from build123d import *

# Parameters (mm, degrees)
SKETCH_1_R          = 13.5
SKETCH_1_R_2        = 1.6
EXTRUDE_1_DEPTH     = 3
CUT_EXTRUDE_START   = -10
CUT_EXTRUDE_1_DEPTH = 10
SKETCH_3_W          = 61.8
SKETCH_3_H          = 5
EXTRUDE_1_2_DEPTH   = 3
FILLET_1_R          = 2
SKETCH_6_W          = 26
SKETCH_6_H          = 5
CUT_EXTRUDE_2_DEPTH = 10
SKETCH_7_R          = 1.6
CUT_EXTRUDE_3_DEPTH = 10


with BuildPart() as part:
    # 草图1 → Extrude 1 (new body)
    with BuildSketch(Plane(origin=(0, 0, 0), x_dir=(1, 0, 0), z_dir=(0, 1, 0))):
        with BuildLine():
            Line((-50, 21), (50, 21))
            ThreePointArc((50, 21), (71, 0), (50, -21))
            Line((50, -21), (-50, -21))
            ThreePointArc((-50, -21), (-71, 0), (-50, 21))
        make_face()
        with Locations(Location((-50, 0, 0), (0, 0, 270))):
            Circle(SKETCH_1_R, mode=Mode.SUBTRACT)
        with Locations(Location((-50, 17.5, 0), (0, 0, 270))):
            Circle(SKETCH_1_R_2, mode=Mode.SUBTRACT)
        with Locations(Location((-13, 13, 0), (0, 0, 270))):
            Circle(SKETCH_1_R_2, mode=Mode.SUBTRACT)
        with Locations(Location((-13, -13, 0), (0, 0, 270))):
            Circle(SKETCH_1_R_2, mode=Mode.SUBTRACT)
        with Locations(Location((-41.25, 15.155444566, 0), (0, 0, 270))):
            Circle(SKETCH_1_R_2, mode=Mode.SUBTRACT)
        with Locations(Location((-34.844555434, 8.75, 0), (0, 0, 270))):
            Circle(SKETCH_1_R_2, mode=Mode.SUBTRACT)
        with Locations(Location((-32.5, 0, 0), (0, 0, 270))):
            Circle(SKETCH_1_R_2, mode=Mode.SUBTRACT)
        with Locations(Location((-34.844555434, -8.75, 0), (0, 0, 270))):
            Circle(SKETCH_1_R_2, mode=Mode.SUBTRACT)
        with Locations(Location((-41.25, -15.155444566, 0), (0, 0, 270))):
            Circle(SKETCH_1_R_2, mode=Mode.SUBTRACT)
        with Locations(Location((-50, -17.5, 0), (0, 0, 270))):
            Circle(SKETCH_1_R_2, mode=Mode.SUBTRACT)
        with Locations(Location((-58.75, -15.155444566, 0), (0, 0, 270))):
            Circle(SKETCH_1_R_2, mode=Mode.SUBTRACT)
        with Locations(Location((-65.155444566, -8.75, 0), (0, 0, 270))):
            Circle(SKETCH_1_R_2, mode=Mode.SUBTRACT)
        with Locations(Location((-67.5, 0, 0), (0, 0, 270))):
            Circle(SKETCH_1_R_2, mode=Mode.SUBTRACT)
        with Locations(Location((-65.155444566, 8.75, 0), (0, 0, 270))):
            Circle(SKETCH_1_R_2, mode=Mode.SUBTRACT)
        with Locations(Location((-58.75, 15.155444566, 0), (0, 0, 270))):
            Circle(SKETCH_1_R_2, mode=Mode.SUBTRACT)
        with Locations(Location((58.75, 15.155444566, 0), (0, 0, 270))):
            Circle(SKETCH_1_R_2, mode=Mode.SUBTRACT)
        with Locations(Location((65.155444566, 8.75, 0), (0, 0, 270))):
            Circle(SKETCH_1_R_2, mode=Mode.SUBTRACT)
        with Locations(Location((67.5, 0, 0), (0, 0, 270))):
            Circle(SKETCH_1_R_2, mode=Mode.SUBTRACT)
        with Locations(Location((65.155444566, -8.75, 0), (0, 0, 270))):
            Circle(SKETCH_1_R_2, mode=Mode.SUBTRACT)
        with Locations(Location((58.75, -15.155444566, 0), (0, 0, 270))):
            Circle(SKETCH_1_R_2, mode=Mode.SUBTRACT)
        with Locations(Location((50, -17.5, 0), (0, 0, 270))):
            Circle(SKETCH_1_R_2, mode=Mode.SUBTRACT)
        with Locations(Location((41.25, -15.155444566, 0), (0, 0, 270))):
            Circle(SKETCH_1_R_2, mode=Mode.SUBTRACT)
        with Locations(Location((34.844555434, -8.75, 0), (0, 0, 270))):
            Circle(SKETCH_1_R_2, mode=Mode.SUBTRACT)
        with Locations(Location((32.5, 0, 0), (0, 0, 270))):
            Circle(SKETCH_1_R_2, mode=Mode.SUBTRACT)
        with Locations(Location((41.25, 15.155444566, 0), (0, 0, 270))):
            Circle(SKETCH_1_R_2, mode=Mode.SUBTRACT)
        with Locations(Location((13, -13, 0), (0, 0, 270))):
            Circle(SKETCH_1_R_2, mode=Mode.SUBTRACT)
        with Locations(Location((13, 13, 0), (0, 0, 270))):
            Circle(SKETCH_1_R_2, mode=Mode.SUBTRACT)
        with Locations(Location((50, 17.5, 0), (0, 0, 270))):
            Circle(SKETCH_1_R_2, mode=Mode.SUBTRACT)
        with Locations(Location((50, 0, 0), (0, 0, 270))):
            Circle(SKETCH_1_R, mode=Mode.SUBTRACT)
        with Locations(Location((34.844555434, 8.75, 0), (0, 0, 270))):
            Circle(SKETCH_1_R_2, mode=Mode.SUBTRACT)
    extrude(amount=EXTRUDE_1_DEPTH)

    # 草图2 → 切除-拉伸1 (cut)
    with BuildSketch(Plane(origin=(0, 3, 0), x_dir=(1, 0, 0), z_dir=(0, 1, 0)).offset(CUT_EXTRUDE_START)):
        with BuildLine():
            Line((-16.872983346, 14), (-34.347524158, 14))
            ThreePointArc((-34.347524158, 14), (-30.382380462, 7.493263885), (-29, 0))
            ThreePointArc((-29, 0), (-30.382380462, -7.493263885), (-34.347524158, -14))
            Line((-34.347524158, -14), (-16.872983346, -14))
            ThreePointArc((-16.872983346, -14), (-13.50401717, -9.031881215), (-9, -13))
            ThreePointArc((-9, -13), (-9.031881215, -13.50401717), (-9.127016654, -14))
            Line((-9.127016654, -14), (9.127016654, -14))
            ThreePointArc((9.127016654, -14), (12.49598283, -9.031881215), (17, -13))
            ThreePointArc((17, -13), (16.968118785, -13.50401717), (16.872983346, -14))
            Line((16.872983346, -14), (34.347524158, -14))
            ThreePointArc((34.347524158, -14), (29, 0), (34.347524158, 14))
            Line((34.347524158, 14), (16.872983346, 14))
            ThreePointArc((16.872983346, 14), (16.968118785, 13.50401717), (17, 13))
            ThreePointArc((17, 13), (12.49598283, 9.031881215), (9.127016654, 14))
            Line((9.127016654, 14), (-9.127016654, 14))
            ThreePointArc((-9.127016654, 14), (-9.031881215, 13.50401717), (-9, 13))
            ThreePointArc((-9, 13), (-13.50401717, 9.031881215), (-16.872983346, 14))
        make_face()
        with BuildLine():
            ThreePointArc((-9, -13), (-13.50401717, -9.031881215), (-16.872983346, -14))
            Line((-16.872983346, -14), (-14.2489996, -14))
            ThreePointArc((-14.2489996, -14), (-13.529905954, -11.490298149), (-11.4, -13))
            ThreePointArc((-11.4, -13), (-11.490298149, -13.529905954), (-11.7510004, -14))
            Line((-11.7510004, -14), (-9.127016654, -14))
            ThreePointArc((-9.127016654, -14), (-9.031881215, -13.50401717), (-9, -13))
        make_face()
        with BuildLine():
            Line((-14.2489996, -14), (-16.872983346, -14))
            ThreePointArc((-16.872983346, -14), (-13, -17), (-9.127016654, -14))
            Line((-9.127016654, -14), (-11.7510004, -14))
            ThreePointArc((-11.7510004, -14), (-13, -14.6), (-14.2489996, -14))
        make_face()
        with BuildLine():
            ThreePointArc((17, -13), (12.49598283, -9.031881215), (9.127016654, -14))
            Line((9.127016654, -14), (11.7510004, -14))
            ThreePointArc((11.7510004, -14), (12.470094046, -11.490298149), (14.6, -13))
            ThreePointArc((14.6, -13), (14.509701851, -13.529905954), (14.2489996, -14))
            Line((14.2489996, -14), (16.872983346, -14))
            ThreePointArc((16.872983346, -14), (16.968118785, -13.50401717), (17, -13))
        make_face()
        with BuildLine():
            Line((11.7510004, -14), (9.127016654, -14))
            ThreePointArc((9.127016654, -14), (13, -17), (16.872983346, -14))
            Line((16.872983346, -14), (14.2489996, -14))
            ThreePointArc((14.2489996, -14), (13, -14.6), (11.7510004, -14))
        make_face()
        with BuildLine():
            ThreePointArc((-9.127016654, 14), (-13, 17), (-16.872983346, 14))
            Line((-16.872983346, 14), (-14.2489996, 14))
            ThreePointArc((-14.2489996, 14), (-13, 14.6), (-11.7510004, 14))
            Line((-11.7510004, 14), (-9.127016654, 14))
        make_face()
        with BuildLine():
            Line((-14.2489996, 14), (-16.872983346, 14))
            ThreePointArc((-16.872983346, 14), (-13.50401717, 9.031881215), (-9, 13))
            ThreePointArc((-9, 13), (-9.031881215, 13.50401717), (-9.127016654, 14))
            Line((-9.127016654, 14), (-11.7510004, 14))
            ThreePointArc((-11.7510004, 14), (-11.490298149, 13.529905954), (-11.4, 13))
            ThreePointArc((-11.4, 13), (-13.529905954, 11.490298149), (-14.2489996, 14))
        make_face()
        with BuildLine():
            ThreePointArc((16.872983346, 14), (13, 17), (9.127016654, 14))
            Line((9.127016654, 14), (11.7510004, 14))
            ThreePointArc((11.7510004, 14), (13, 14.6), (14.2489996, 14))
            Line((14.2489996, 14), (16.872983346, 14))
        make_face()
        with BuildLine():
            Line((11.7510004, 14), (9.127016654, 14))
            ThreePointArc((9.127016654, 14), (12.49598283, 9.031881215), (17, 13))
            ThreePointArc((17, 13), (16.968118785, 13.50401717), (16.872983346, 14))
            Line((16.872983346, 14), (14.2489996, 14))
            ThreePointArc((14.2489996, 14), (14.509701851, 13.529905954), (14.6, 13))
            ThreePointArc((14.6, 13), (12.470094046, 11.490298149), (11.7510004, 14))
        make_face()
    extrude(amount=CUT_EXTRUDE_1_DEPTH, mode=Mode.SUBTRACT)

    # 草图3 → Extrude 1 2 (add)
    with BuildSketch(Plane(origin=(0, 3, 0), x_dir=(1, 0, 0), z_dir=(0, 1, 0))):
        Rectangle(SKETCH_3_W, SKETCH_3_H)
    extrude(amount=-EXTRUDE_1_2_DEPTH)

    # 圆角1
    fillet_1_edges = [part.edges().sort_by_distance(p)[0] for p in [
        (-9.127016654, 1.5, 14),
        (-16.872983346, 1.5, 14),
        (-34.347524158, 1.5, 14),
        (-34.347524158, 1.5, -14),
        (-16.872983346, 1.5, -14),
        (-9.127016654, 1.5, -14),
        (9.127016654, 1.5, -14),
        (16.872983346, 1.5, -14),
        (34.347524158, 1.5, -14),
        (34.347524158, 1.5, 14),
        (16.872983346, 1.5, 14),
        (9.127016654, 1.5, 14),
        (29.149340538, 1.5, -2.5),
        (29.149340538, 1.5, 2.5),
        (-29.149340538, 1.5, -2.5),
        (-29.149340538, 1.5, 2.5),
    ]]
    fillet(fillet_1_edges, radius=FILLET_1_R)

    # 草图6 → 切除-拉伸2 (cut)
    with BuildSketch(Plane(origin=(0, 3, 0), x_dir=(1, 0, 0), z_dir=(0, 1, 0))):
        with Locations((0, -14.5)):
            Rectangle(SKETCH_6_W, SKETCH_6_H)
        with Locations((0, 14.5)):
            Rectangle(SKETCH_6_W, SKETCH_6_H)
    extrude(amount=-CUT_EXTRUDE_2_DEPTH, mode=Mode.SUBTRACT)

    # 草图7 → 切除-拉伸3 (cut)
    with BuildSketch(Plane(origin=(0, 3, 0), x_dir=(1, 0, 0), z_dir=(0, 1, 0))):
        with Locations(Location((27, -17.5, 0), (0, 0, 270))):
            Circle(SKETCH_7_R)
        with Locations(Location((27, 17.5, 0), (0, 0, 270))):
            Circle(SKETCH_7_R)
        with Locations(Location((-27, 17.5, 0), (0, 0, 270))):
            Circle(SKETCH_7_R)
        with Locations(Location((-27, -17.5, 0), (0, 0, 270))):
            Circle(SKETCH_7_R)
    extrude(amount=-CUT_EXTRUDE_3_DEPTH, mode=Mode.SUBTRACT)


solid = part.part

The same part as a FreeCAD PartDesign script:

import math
import FreeCAD as App
import Part
import Sketcher
from FreeCAD import Vector
Q = App.Units.Quantity


def edges_at(feature, points):
    """Names of the edges that pass closest to the given points."""
    edges = feature.Shape.Edges
    near = lambda p: min(range(len(edges)), key=lambda i: edges[i].distToShape(Part.Vertex(*p))[0])
    return sorted({f"Edge{near(p) + 1}" for p in points})

doc = App.newDocument("Part")
body = doc.addObject("PartDesign::Body", "Body")

# Sketch on XZ plane
sketch1 = body.newObject("Sketcher::SketchObject", "Sketch")
sketch1.AttachmentSupport = (doc.getObject("XZ_Plane"), [""])
sketch1.MapMode = "FlatFace"
sketch1.addGeometry([
    Part.LineSegment(Vector(50, -21, 0), Vector(-50, -21, 0)),  # 0
    Part.ArcOfCircle(Part.Circle(Vector(-50, 0, 0), Vector(0, 0, 1), 21), math.radians(90), math.radians(270)),  # 1
    Part.LineSegment(Vector(-50, 21, 0), Vector(50, 21, 0)),  # 2
    Part.ArcOfCircle(Part.Circle(Vector(50, 0, 0), Vector(0, 0, 1), 21), math.radians(-90), math.radians(90)),  # 3
    Part.Circle(Vector(58.8, 15.2, 0), Vector(0, 0, 1), 1.6),  # 4
    Part.Circle(Vector(50, 17.5, 0), Vector(0, 0, 1), 1.6),  # 5
    Part.Circle(Vector(41.2, 15.2, 0), Vector(0, 0, 1), 1.6),  # 6
    Part.Circle(Vector(13, 13, 0), Vector(0, 0, 1), 1.6),  # 7
    Part.Circle(Vector(65.2, 8.8, 0), Vector(0, 0, 1), 1.6),  # 8
    Part.Circle(Vector(34.8, 8.8, 0), Vector(0, 0, 1), 1.6),  # 9
    Part.Circle(Vector(67.5, 0, 0), Vector(0, 0, 1), 1.6),  # 10
    Part.Circle(Vector(50, 0, 0), Vector(0, 0, 1), 13.5),  # 11
    Part.Circle(Vector(32.5, 0, 0), Vector(0, 0, 1), 1.6),  # 12
    Part.Circle(Vector(-13, 13, 0), Vector(0, 0, 1), 1.6),  # 13
    Part.Circle(Vector(-50, 17.5, 0), Vector(0, 0, 1), 1.6),  # 14
    Part.Circle(Vector(-41.2, 15.2, 0), Vector(0, 0, 1), 1.6),  # 15
    Part.Circle(Vector(-58.8, 15.2, 0), Vector(0, 0, 1), 1.6),  # 16
    Part.Circle(Vector(-32.5, 0, 0), Vector(0, 0, 1), 1.6),  # 17
    Part.Circle(Vector(-34.8, 8.8, 0), Vector(0, 0, 1), 1.6),  # 18
    Part.Circle(Vector(-65.2, 8.8, 0), Vector(0, 0, 1), 1.6),  # 19
    Part.Circle(Vector(-50, 0, 0), Vector(0, 0, 1), 13.5),  # 20
    Part.Circle(Vector(-67.5, 0, 0), Vector(0, 0, 1), 1.6),  # 21
    Part.Circle(Vector(65.2, -8.8, 0), Vector(0, 0, 1), 1.6),  # 22
    Part.Circle(Vector(34.8, -8.8, 0), Vector(0, 0, 1), 1.6),  # 23
    Part.Circle(Vector(58.8, -15.2, 0), Vector(0, 0, 1), 1.6),  # 24
    Part.Circle(Vector(41.2, -15.2, 0), Vector(0, 0, 1), 1.6),  # 25
    Part.Circle(Vector(50, -17.5, 0), Vector(0, 0, 1), 1.6),  # 26
    Part.Circle(Vector(13, -13, 0), Vector(0, 0, 1), 1.6),  # 27
    Part.Circle(Vector(-34.8, -8.8, 0), Vector(0, 0, 1), 1.6),  # 28
    Part.Circle(Vector(-65.2, -8.8, 0), Vector(0, 0, 1), 1.6),  # 29
    Part.Circle(Vector(-13, -13, 0), Vector(0, 0, 1), 1.6),  # 30
    Part.Circle(Vector(-41.2, -15.2, 0), Vector(0, 0, 1), 1.6),  # 31
    Part.Circle(Vector(-50, -17.5, 0), Vector(0, 0, 1), 1.6),  # 32
    Part.Circle(Vector(-58.8, -15.2, 0), Vector(0, 0, 1), 1.6),  # 33
], False)
sketch1.addConstraint([
    Sketcher.Constraint("Tangent", 0, 2, 1, 2),
    Sketcher.Constraint("Tangent", 1, 1, 2, 1),
    Sketcher.Constraint("Tangent", 2, 2, 3, 2),
    Sketcher.Constraint("Tangent", 3, 1, 0, 1),
    Sketcher.Constraint("Horizontal", 0),
    Sketcher.Constraint("Horizontal", 2),
    Sketcher.Constraint("Coincident", 11, 3, 3, 3),
    Sketcher.Constraint("Coincident", 20, 3, 1, 3),
    Sketcher.Constraint("Equal", 4, 5),
    Sketcher.Constraint("Equal", 5, 6),
    Sketcher.Constraint("Equal", 6, 7),
    Sketcher.Constraint("Equal", 7, 8),
    Sketcher.Constraint("Equal", 8, 9),
    Sketcher.Constraint("Equal", 9, 10),
    Sketcher.Constraint("Equal", 10, 12),
    Sketcher.Constraint("Equal", 12, 13),
    Sketcher.Constraint("Equal", 13, 14),
    Sketcher.Constraint("Equal", 14, 15),
    Sketcher.Constraint("Equal", 15, 16),
    Sketcher.Constraint("Equal", 16, 17),
    Sketcher.Constraint("Equal", 17, 18),
    Sketcher.Constraint("Equal", 18, 19),
    Sketcher.Constraint("Equal", 11, 20),
    Sketcher.Constraint("Equal", 19, 21),
    Sketcher.Constraint("Equal", 21, 22),
    Sketcher.Constraint("Equal", 22, 23),
    Sketcher.Constraint("Equal", 23, 24),
    Sketcher.Constraint("Equal", 24, 25),
    Sketcher.Constraint("Equal", 25, 26),
    Sketcher.Constraint("Equal", 26, 27),
    Sketcher.Constraint("Equal", 27, 28),
    Sketcher.Constraint("Equal", 28, 29),
    Sketcher.Constraint("Equal", 29, 30),
    Sketcher.Constraint("Equal", 30, 31),
    Sketcher.Constraint("Equal", 31, 32),
    Sketcher.Constraint("Equal", 32, 33),
    Sketcher.Constraint("Symmetric", 1, 3, 3, 3, -1, 1),
    Sketcher.Constraint("Symmetric", 12, 3, 17, 3, -1, 1),
    Sketcher.Constraint("Symmetric", 10, 3, 21, 3, -1, 1),
    Sketcher.Constraint("Symmetric", 19, 3, 22, 3, -1, 1),
    Sketcher.Constraint("Symmetric", 18, 3, 23, 3, -1, 1),
    Sketcher.Constraint("Symmetric", 16, 3, 24, 3, -1, 1),
    Sketcher.Constraint("Symmetric", 15, 3, 25, 3, -1, 1),
    Sketcher.Constraint("Symmetric", 14, 3, 26, 3, -1, 1),
    Sketcher.Constraint("Symmetric", 13, 3, 27, 3, -1, 1),
    Sketcher.Constraint("Symmetric", 9, 3, 28, 3, -1, 1),
    Sketcher.Constraint("Symmetric", 8, 3, 29, 3, -1, 1),
    Sketcher.Constraint("Symmetric", 7, 3, 30, 3, -1, 1),
    Sketcher.Constraint("Symmetric", 6, 3, 31, 3, -1, 1),
    Sketcher.Constraint("Symmetric", 5, 3, 32, 3, -1, 1),
    Sketcher.Constraint("Symmetric", 4, 3, 33, 3, -1, 1),
    Sketcher.Constraint("Symmetric", 7, 3, 13, 3, -2),
    Sketcher.Constraint("Symmetric", 5, 3, 14, 3, -2),
    Sketcher.Constraint("Symmetric", 6, 3, 15, 3, -2),
    Sketcher.Constraint("Symmetric", 4, 3, 16, 3, -2),
    Sketcher.Constraint("Symmetric", 9, 3, 18, 3, -2),
    Sketcher.Constraint("Symmetric", 8, 3, 19, 3, -2),
    Sketcher.Constraint("PointOnObject", 10, 3, -1),
    Sketcher.Constraint("PointOnObject", 12, 3, -1),
    Sketcher.Constraint("Horizontal", 4, 3, 6, 3),
    Sketcher.Constraint("Horizontal", 8, 3, 9, 3),
    Sketcher.Constraint("Vertical", 3, 3, 5, 3),
    Sketcher.Constraint("Diameter", 11, Q("27 mm")),
    Sketcher.Constraint("Radius", 1, Q("21 mm")),
    Sketcher.Constraint("Diameter", 4, Q("3.2 mm")),
    Sketcher.Constraint("DistanceX", 0, 2, 0, 1, Q("100 mm")),
    Sketcher.Constraint("DistanceX", -1, 1, 7, 3, Q("13 mm")),
    Sketcher.Constraint("DistanceY", -1, 1, 7, 3, Q("13 mm")),
    Sketcher.Constraint("DistanceY", -1, 1, 5, 3, Q("17.5 mm")),
    Sketcher.Constraint("DistanceX", -1, 1, 10, 3, Q("67.5 mm")),
    Sketcher.Constraint("DistanceX", -1, 1, 12, 3, Q("32.5 mm")),
    Sketcher.Constraint("DistanceX", 6, 3, 4, 3, Q("17.5 mm")),
    Sketcher.Constraint("DistanceY", 22, 3, 8, 3, Q("17.5 mm")),
    Sketcher.Constraint("DistanceX", -1, 1, 4, 3, Q("58.75 mm")),
    Sketcher.Constraint("DistanceX", 19, 3, 18, 3, Q("30.310889 mm")),
    Sketcher.Constraint("DistanceY", -1, 1, 4, 3, Q("15.155445 mm")),
    Sketcher.Constraint("DistanceX", -1, 1, 8, 3, Q("65.155445 mm")),
])
pad1 = body.newObject("PartDesign::Pad", "Pad")
pad1.Profile = sketch1
pad1.Length = 3
pad1.Reversed = True

# Sketch on XZ plane
sketch2 = body.newObject("Sketcher::SketchObject", "Sketch001")
sketch2.AttachmentSupport = (doc.getObject("XZ_Plane"), [""])
sketch2.MapMode = "FlatFace"
sketch2.AttachmentOffset = App.Placement(Vector(0, 0, 7), App.Rotation())
sketch2.addGeometry([
    Part.LineSegment(Vector(16.9, 14, 0), Vector(34.3, 14, 0)),  # 0
    Part.ArcOfCircle(Part.Circle(Vector(50, 0, 0), Vector(0, 0, 1), 21), math.radians(138), math.radians(222)),  # 1
    Part.LineSegment(Vector(34.3, -14, 0), Vector(16.9, -14, 0)),  # 2
    Part.ArcOfCircle(Part.Circle(Vector(13, -13, 0), Vector(0, 0, 1), 4), math.radians(-166), math.radians(-14)),  # 3
    Part.LineSegment(Vector(9.1, -14, 0), Vector(-9.1, -14, 0)),  # 4
    Part.ArcOfCircle(Part.Circle(Vector(-13, -13, 0), Vector(0, 0, 1), 4), math.radians(-166), math.radians(-14)),  # 5
    Part.LineSegment(Vector(-16.9, -14, 0), Vector(-34.3, -14, 0)),  # 6
    Part.ArcOfCircle(Part.Circle(Vector(-50, 0, 0), Vector(0, 0, 1), 21), math.radians(-42), math.radians(0)),  # 7
    Part.ArcOfCircle(Part.Circle(Vector(-50, 0, 0), Vector(0, 0, 1), 21), math.radians(0), math.radians(42)),  # 8
    Part.LineSegment(Vector(-34.3, 14, 0), Vector(-16.9, 14, 0)),  # 9
    Part.ArcOfCircle(Part.Circle(Vector(-13, 13, 0), Vector(0, 0, 1), 4), math.radians(14), math.radians(166)),  # 10
    Part.LineSegment(Vector(-9.1, 14, 0), Vector(9.1, 14, 0)),  # 11
    Part.ArcOfCircle(Part.Circle(Vector(13, 13, 0), Vector(0, 0, 1), 4), math.radians(14), math.radians(166)),  # 12
    Part.ArcOfCircle(Part.Circle(Vector(-13, 13, 0), Vector(0, 0, 1), 1.6), math.radians(0), math.radians(39)),  # 13
    Part.ArcOfCircle(Part.Circle(Vector(-13, 13, 0), Vector(0, 0, 1), 1.6), math.radians(39), math.radians(141)),  # 14
    Part.ArcOfCircle(Part.Circle(Vector(-13, 13, 0), Vector(0, 0, 1), 1.6), math.radians(141), math.radians(360)),  # 15
    Part.ArcOfCircle(Part.Circle(Vector(13, 13, 0), Vector(0, 0, 1), 1.6), math.radians(0), math.radians(39)),  # 16
    Part.ArcOfCircle(Part.Circle(Vector(13, 13, 0), Vector(0, 0, 1), 1.6), math.radians(39), math.radians(141)),  # 17
    Part.ArcOfCircle(Part.Circle(Vector(13, 13, 0), Vector(0, 0, 1), 1.6), math.radians(141), math.radians(360)),  # 18
    Part.ArcOfCircle(Part.Circle(Vector(-13, -13, 0), Vector(0, 0, 1), 1.6), math.radians(-39), math.radians(0)),  # 19
    Part.ArcOfCircle(Part.Circle(Vector(-13, -13, 0), Vector(0, 0, 1), 1.6), math.radians(0), math.radians(219)),  # 20
    Part.ArcOfCircle(Part.Circle(Vector(-13, -13, 0), Vector(0, 0, 1), 1.6), math.radians(-141), math.radians(-39)),  # 21
    Part.ArcOfCircle(Part.Circle(Vector(13, -13, 0), Vector(0, 0, 1), 1.6), math.radians(-39), math.radians(0)),  # 22
    Part.ArcOfCircle(Part.Circle(Vector(13, -13, 0), Vector(0, 0, 1), 1.6), math.radians(0), math.radians(219)),  # 23
    Part.ArcOfCircle(Part.Circle(Vector(13, -13, 0), Vector(0, 0, 1), 1.6), math.radians(-141), math.radians(-39)),  # 24
], False)
sketch2.addConstraint([
    Sketcher.Constraint("Coincident", 0, 2, 1, 1),
    Sketcher.Constraint("Coincident", 1, 2, 2, 1),
    Sketcher.Constraint("Coincident", 2, 2, 3, 2),
    Sketcher.Constraint("Coincident", 3, 1, 4, 1),
    Sketcher.Constraint("Coincident", 4, 2, 5, 2),
    Sketcher.Constraint("Coincident", 5, 1, 6, 1),
    Sketcher.Constraint("Coincident", 6, 2, 7, 1),
    Sketcher.Constraint("Tangent", 7, 2, 8, 1),
    Sketcher.Constraint("Coincident", 8, 2, 9, 1),
    Sketcher.Constraint("Coincident", 9, 2, 10, 2),
    Sketcher.Constraint("Coincident", 10, 1, 11, 1),
    Sketcher.Constraint("Coincident", 11, 2, 12, 2),
    Sketcher.Constraint("Coincident", 12, 1, 0, 1),
    Sketcher.Constraint("Tangent", 13, 2, 14, 1),
    Sketcher.Constraint("Tangent", 14, 2, 15, 1),
    Sketcher.Constraint("Tangent", 15, 2, 13, 1),
    Sketcher.Constraint("Tangent", 16, 2, 17, 1),
    Sketcher.Constraint("Tangent", 17, 2, 18, 1),
    Sketcher.Constraint("Tangent", 18, 2, 16, 1),
    Sketcher.Constraint("Tangent", 19, 2, 20, 1),
    Sketcher.Constraint("Tangent", 20, 2, 21, 1),
    Sketcher.Constraint("Tangent", 21, 2, 19, 1),
    Sketcher.Constraint("Tangent", 22, 2, 23, 1),
    Sketcher.Constraint("Tangent", 23, 2, 24, 1),
    Sketcher.Constraint("Tangent", 24, 2, 22, 1),
    Sketcher.Constraint("Horizontal", 0),
    Sketcher.Constraint("Horizontal", 2),
    Sketcher.Constraint("Horizontal", 4),
    Sketcher.Constraint("Horizontal", 6),
    Sketcher.Constraint("Horizontal", 9),
    Sketcher.Constraint("Horizontal", 11),
    Sketcher.Constraint("Coincident", 13, 3, 10, 3),
    Sketcher.Constraint("Coincident", 16, 3, 12, 3),
    Sketcher.Constraint("Coincident", 19, 3, 5, 3),
    Sketcher.Constraint("Coincident", 22, 3, 3, 3),
    Sketcher.Constraint("Equal", 3, 5),
    Sketcher.Constraint("Equal", 1, 7),
    Sketcher.Constraint("Equal", 7, 8),
    Sketcher.Constraint("Equal", 5, 10),
    Sketcher.Constraint("Equal", 10, 12),
    Sketcher.Constraint("Equal", 15, 16),
    Sketcher.Constraint("Equal", 18, 19),
    Sketcher.Constraint("Equal", 21, 22),
    Sketcher.Constraint("Symmetric", 1, 3, 7, 3, -1, 1),
    Sketcher.Constraint("Symmetric", 3, 3, 10, 3, -1, 1),
    Sketcher.Constraint("Symmetric", 5, 3, 12, 3, -1, 1),
    Sketcher.Constraint("Symmetric", 3, 3, 5, 3, -2),
    Sketcher.Constraint("Symmetric", 1, 2, 6, 2, -2),
    Sketcher.Constraint("PointOnObject", 7, 2, -1),
    Sketcher.Constraint("Horizontal", 2, 2, 3, 1),
    Sketcher.Constraint("Horizontal", 0, 2, 8, 2),
    Sketcher.Constraint("Horizontal", 9, 2, 10, 1),
    Sketcher.Constraint("Horizontal", 12, 1, 13, 2),
    Sketcher.Constraint("Horizontal", 13, 2, 14, 2),
    Sketcher.Constraint("Horizontal", 18, 3, 15, 2),
    Sketcher.Constraint("Horizontal", 14, 2, 16, 2),
    Sketcher.Constraint("Horizontal", 16, 2, 17, 2),
    Sketcher.Constraint("Horizontal", 15, 2, 18, 2),
    Sketcher.Constraint("Horizontal", 24, 3, 19, 2),
    Sketcher.Constraint("Horizontal", 6, 2, 20, 2),
    Sketcher.Constraint("Horizontal", 20, 2, 21, 2),
    Sketcher.Constraint("Horizontal", 19, 2, 22, 2),
    Sketcher.Constraint("Horizontal", 21, 2, 23, 2),
    Sketcher.Constraint("Horizontal", 23, 2, 24, 2),
    Sketcher.Constraint("Vertical", 0, 2, 1, 2),
    Sketcher.Constraint("Radius", 1, Q("21 mm")),
    Sketcher.Constraint("Radius", 3, Q("4 mm")),
    Sketcher.Constraint("Radius", 13, Q("1.6 mm")),
    Sketcher.Constraint("DistanceX", -1, 1, 1, 3, Q("50 mm")),
    Sketcher.Constraint("DistanceX", -1, 1, 3, 3, Q("13 mm")),
    Sketcher.Constraint("DistanceY", 3, 3, -1, 1, Q("13 mm")),
    Sketcher.Constraint("DistanceY", -1, 1, 0, 2, Q("14 mm")),
])
pocket1 = body.newObject("PartDesign::Pocket", "Pocket")
pocket1.Profile = sketch2
pocket1.Length = 10

# Sketch on XZ plane
sketch3 = body.newObject("Sketcher::SketchObject", "Sketch002")
sketch3.AttachmentSupport = (doc.getObject("XZ_Plane"), [""])
sketch3.MapMode = "FlatFace"
sketch3.AttachmentOffset = App.Placement(Vector(0, 0, -3), App.Rotation())
sketch3.addGeometry([
    Part.LineSegment(Vector(-31, -2, 0), Vector(-31, 2, 0)),
    Part.LineSegment(Vector(-31, 2, 0), Vector(31, 2, 0)),
    Part.LineSegment(Vector(31, 2, 0), Vector(31, -2, 0)),
    Part.LineSegment(Vector(31, -2, 0), Vector(-31, -2, 0)),
], False)
sketch3.addConstraint([
    Sketcher.Constraint("Coincident", 0, 2, 1, 1),
    Sketcher.Constraint("Coincident", 1, 2, 2, 1),
    Sketcher.Constraint("Coincident", 2, 2, 3, 1),
    Sketcher.Constraint("Coincident", 3, 2, 0, 1),
    Sketcher.Constraint("Vertical", 0),
    Sketcher.Constraint("Horizontal", 1),
    Sketcher.Constraint("Vertical", 2),
    Sketcher.Constraint("Horizontal", 3),
    Sketcher.Constraint("Symmetric", 0, 2, 2, 2, -1, 1),
    Sketcher.Constraint("DistanceY", 0, 1, 0, 2, Q("5 mm")),
    Sketcher.Constraint("DistanceX", 1, 1, 1, 2, Q("61.8 mm")),
])
pad2 = body.newObject("PartDesign::Pad", "Pad001")
pad2.Profile = sketch3
pad2.Length = 3
doc.recompute()

fillet = body.newObject("PartDesign::Fillet", "Fillet")
fillet.Base = (pad2, edges_at(pad2, [
    (-9.127, 1.5, 14),
    (-16.873, 1.5, 14),
    (-34.348, 1.5, 14),
    (-34.348, 1.5, -14),
    (-16.873, 1.5, -14),
    (-9.127, 1.5, -14),
    (9.127, 1.5, -14),
    (16.873, 1.5, -14),
    (34.348, 1.5, -14),
    (34.348, 1.5, 14),
    (16.873, 1.5, 14),
    (9.127, 1.5, 14),
    (29.149, 1.5, -2.5),
    (29.149, 1.5, 2.5),
    (-29.149, 1.5, -2.5),
    (-29.149, 1.5, 2.5),
]))
fillet.Radius = 2

# Sketch on XZ plane
sketch4 = body.newObject("Sketcher::SketchObject", "Sketch003")
sketch4.AttachmentSupport = (doc.getObject("XZ_Plane"), [""])
sketch4.MapMode = "FlatFace"
sketch4.AttachmentOffset = App.Placement(Vector(0, 0, -3), App.Rotation())
sketch4.addGeometry([
    Part.LineSegment(Vector(-13, 12, 0), Vector(-13, 17, 0)),  # 0
    Part.LineSegment(Vector(-13, 17, 0), Vector(13, 17, 0)),  # 1
    Part.LineSegment(Vector(13, 17, 0), Vector(13, 12, 0)),  # 2
    Part.LineSegment(Vector(13, 12, 0), Vector(-13, 12, 0)),  # 3
    Part.LineSegment(Vector(-13, -17, 0), Vector(-13, -12, 0)),  # 4
    Part.LineSegment(Vector(-13, -12, 0), Vector(13, -12, 0)),  # 5
    Part.LineSegment(Vector(13, -12, 0), Vector(13, -17, 0)),  # 6
    Part.LineSegment(Vector(13, -17, 0), Vector(-13, -17, 0)),  # 7
], False)
sketch4.addConstraint([
    Sketcher.Constraint("Coincident", 0, 2, 1, 1),
    Sketcher.Constraint("Coincident", 1, 2, 2, 1),
    Sketcher.Constraint("Coincident", 2, 2, 3, 1),
    Sketcher.Constraint("Coincident", 3, 2, 0, 1),
    Sketcher.Constraint("Coincident", 4, 2, 5, 1),
    Sketcher.Constraint("Coincident", 5, 2, 6, 1),
    Sketcher.Constraint("Coincident", 6, 2, 7, 1),
    Sketcher.Constraint("Coincident", 7, 2, 4, 1),
    Sketcher.Constraint("Vertical", 0),
    Sketcher.Constraint("Horizontal", 1),
    Sketcher.Constraint("Vertical", 2),
    Sketcher.Constraint("Horizontal", 3),
    Sketcher.Constraint("Vertical", 4),
    Sketcher.Constraint("Horizontal", 5),
    Sketcher.Constraint("Vertical", 6),
    Sketcher.Constraint("Horizontal", 7),
    Sketcher.Constraint("Symmetric", 2, 2, 4, 2, -1, 1),
    Sketcher.Constraint("Symmetric", 0, 2, 6, 2, -1, 1),
    Sketcher.Constraint("Vertical", 3, 2, 4, 2),
    Sketcher.Constraint("DistanceX", 1, 1, 1, 2, Q("26 mm")),
    Sketcher.Constraint("DistanceY", 0, 1, 0, 2, Q("5 mm")),
    Sketcher.Constraint("DistanceY", -1, 1, 0, 2, Q("17 mm")),
])
pocket2 = body.newObject("PartDesign::Pocket", "Pocket001")
pocket2.Profile = sketch4
pocket2.Length = 10
pocket2.Reversed = True

# Sketch on XZ plane
sketch5 = body.newObject("Sketcher::SketchObject", "Sketch004")
sketch5.AttachmentSupport = (doc.getObject("XZ_Plane"), [""])
sketch5.MapMode = "FlatFace"
sketch5.AttachmentOffset = App.Placement(Vector(0, 0, -3), App.Rotation())
sketch5.addGeometry([
    Part.Circle(Vector(27, 17.5, 0), Vector(0, 0, 1), 1.6),
    Part.Circle(Vector(27, -17.5, 0), Vector(0, 0, 1), 1.6),
    Part.Circle(Vector(-27, -17.5, 0), Vector(0, 0, 1), 1.6),
    Part.Circle(Vector(-27, 17.5, 0), Vector(0, 0, 1), 1.6),
], False)
sketch5.addConstraint([
    Sketcher.Constraint("Equal", 0, 1),
    Sketcher.Constraint("Equal", 1, 2),
    Sketcher.Constraint("Equal", 2, 3),
    Sketcher.Constraint("Symmetric", 0, 3, 2, 3, -1, 1),
    Sketcher.Constraint("Symmetric", 1, 3, 3, 3, -1, 1),
    Sketcher.Constraint("Symmetric", 1, 3, 2, 3, -2),
    Sketcher.Constraint("Diameter", 0, Q("3.2 mm")),
    Sketcher.Constraint("DistanceX", -1, 1, 0, 3, Q("27 mm")),
    Sketcher.Constraint("DistanceY", 1, 3, 0, 3, Q("35 mm")),
])
pocket3 = body.newObject("PartDesign::Pocket", "Pocket002")
pocket3.Profile = sketch5
pocket3.Length = 10
pocket3.Reversed = True

doc.recompute()
